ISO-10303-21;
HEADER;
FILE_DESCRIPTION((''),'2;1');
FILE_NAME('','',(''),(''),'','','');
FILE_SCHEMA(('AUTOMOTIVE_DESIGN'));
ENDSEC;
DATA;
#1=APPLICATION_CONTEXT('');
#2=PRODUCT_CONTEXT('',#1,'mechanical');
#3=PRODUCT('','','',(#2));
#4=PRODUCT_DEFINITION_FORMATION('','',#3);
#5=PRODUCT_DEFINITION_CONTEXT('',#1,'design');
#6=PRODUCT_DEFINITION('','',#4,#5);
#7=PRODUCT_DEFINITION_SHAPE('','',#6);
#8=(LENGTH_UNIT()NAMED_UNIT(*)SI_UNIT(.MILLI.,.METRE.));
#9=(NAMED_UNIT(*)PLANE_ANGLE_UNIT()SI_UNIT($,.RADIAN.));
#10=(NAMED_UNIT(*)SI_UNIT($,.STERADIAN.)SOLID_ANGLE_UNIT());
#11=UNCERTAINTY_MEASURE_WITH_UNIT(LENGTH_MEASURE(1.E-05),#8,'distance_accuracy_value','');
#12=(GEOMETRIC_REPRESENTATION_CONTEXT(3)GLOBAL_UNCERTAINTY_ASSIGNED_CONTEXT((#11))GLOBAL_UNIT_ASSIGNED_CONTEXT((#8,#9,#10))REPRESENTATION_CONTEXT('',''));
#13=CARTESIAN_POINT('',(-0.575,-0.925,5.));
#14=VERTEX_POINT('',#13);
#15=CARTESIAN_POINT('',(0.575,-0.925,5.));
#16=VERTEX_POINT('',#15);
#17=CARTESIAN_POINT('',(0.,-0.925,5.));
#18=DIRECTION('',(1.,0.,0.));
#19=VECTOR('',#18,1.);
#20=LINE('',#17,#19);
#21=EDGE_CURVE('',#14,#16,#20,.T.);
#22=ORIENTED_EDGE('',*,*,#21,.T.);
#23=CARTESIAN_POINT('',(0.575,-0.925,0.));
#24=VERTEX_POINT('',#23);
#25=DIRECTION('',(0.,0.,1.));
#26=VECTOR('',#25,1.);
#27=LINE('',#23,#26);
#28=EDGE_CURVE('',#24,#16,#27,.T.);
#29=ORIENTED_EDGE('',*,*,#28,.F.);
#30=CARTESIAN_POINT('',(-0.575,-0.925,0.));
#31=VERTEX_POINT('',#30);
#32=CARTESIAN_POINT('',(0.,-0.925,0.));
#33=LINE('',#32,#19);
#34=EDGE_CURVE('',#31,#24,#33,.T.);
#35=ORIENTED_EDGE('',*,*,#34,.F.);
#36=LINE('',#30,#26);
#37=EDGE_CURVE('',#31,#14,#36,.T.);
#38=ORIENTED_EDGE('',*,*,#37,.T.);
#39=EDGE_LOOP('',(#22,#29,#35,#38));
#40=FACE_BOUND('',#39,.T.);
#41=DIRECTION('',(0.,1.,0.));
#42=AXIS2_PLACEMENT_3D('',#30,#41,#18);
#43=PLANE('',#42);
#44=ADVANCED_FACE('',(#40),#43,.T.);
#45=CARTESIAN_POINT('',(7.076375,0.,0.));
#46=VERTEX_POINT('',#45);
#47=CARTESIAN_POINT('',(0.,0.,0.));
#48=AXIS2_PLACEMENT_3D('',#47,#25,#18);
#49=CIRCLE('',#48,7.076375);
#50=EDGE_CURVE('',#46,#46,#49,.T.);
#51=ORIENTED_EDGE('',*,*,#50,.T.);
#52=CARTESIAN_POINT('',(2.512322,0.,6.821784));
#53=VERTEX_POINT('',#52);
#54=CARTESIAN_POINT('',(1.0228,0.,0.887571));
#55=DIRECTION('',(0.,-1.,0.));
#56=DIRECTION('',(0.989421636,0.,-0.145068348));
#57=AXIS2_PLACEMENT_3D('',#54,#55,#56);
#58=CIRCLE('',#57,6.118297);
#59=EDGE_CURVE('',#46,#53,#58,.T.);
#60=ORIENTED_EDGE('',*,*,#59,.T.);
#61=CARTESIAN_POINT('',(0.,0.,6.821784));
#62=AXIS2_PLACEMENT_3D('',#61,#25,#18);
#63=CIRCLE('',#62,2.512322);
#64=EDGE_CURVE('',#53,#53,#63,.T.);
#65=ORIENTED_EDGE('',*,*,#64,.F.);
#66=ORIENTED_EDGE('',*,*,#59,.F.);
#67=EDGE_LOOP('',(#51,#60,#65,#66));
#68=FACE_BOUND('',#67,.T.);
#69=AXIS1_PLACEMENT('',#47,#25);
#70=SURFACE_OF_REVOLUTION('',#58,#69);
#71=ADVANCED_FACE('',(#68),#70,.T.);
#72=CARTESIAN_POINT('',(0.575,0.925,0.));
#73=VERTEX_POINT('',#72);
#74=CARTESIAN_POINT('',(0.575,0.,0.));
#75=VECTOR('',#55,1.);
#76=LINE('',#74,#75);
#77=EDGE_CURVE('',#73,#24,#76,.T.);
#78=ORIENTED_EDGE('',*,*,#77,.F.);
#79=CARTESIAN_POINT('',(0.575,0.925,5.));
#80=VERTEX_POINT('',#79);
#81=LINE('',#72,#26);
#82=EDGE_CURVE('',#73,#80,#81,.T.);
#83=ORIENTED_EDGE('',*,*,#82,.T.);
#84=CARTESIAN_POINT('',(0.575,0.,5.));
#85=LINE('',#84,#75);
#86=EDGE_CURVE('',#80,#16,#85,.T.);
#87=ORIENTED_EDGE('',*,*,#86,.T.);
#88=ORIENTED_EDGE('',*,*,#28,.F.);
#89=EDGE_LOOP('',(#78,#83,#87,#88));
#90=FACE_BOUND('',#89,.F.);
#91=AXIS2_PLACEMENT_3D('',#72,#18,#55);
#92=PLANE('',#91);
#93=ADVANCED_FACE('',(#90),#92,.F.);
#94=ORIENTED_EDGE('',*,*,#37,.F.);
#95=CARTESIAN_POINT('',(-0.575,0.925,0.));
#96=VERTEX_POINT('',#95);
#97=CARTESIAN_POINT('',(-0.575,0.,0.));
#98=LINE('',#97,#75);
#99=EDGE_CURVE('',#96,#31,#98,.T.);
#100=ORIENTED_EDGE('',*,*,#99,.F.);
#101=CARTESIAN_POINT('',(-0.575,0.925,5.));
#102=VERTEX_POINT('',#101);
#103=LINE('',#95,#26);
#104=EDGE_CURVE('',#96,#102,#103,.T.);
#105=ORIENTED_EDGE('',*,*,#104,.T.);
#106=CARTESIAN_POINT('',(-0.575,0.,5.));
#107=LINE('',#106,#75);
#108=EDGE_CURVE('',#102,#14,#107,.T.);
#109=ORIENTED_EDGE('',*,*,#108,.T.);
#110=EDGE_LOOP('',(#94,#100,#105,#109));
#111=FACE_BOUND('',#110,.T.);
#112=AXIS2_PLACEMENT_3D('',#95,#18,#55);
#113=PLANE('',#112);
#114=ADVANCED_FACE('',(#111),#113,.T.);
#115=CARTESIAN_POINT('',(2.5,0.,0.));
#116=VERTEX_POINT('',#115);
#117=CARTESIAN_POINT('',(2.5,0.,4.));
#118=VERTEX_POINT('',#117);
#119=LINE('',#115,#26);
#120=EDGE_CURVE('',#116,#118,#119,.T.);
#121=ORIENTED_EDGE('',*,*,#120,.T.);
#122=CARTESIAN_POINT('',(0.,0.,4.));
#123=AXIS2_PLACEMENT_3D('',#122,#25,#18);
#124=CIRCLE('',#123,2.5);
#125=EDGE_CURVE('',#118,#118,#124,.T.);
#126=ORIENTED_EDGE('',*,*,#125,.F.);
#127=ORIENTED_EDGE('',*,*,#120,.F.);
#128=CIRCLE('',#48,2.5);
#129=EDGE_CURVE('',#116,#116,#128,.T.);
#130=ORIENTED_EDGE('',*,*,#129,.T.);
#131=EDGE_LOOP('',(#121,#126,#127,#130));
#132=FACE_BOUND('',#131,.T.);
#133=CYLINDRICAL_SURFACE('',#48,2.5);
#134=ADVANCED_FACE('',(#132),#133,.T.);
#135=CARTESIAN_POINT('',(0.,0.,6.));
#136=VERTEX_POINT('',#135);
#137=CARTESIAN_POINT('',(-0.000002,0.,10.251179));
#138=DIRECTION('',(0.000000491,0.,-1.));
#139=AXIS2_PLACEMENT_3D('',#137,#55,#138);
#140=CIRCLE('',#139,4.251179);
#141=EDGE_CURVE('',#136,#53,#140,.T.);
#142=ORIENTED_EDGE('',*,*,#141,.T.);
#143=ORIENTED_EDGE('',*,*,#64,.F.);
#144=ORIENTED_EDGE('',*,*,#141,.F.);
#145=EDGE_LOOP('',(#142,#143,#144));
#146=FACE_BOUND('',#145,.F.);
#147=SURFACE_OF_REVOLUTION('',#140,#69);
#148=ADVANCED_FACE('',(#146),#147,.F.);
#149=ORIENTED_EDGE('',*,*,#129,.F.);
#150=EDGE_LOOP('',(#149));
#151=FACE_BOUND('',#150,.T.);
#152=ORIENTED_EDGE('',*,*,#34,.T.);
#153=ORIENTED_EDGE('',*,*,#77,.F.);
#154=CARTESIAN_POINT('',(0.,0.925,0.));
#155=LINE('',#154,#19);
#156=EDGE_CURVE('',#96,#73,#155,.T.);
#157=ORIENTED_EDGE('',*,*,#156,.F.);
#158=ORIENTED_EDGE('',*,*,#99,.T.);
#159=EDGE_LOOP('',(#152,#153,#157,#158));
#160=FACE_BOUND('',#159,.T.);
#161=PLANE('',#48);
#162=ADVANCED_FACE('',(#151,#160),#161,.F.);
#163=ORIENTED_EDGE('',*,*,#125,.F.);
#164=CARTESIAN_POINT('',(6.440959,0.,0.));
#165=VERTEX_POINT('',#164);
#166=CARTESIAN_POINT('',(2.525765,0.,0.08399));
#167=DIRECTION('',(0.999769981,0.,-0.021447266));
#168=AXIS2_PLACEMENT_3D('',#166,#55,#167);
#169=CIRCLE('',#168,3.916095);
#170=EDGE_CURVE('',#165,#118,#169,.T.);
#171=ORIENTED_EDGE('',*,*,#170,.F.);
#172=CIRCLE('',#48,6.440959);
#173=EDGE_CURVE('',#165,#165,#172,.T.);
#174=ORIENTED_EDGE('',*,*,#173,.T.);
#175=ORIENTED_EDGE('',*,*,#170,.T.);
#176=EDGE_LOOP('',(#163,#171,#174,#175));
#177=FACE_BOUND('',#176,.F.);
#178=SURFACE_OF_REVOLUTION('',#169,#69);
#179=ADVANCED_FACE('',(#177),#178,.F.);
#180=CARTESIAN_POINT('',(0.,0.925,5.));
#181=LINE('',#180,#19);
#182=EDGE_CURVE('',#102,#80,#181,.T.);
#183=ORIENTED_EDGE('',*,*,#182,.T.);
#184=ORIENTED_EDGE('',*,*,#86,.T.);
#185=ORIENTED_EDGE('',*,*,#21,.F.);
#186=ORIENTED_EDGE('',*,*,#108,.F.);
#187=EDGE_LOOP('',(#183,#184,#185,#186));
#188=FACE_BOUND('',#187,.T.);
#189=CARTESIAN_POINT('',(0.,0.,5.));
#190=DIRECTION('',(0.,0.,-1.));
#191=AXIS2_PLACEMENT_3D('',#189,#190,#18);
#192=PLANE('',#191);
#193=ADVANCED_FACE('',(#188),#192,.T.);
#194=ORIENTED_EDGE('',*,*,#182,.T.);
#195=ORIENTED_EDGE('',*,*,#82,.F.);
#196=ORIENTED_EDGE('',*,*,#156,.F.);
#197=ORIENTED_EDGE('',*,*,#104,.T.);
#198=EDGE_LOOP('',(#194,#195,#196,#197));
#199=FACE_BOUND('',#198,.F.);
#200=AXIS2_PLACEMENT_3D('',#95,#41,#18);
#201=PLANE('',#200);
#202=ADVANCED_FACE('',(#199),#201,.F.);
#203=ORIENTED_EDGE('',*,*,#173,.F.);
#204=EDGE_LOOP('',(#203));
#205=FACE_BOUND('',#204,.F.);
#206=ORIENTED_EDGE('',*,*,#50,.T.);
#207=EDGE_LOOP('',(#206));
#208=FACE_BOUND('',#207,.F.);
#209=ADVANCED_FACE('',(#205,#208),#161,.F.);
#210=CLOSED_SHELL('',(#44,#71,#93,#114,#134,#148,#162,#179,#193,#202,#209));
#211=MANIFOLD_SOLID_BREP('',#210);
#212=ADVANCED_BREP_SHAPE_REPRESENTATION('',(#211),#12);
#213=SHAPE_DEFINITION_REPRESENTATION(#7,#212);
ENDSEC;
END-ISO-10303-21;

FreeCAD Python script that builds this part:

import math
import FreeCAD as App
import Part
import Sketcher

V = App.Vector

doc = App.newDocument("Part")
body = doc.addObject("PartDesign::Body", "Body")

# Sketch on XZ plane
sketch1 = body.newObject("Sketcher::SketchObject", "Sketch")
sketch1.AttachmentSupport = (doc.getObject("XZ_Plane"), [""])
sketch1.MapMode = "FlatFace"
sketch1.addGeometry([
    Part.ArcOfCircle(Part.Circle(V(-0.000002, 10.251179, 0), V(0, 0, 1), 4.251179), math.radians(-89.999972), math.radians(-53.774044)),  # 0
    Part.LineSegment(V(0, 6, 0), V(0, 0, 0)),  # 1
    Part.LineSegment(V(0, 0, 0), V(2.5, 0, 0)),  # 2
    Part.LineSegment(V(2.5, 0, 0), V(2.5, 4, 0)),  # 3
    Part.ArcOfCircle(Part.Circle(V(2.525765, 0.08399, 0), V(0, 0, 1), 3.916095), math.radians(-1.228932), math.radians(90.37696)),  # 4
    Part.LineSegment(V(6.440959, 0, 0), V(7.076375, 0, 0)),  # 5
    Part.ArcOfCircle(Part.Circle(V(1.0228, 0.887571, 0), V(0, 0, 1), 6.118297), math.radians(-8.341237), math.radians(75.909526)),  # 6
], False)
sketch1.addConstraint([
    Sketcher.Constraint("Coincident", 0, 1, 1, 1),
    Sketcher.Constraint("Coincident", 1, 2, 2, 1),
    Sketcher.Constraint("Coincident", 2, 2, 3, 1),
    Sketcher.Constraint("Coincident", 3, 2, 4, 2),
    Sketcher.Constraint("Coincident", 4, 1, 5, 1),
    Sketcher.Constraint("Coincident", 5, 2, 6, 1),
    Sketcher.Constraint("Coincident", 6, 2, 0, 2),
    Sketcher.Constraint("Vertical", 1),
    Sketcher.Constraint("Horizontal", 2),
    Sketcher.Constraint("Vertical", 3),
    Sketcher.Constraint("Horizontal", 5),
    Sketcher.Constraint("Coincident", 1, 2, -1, 1),
    Sketcher.Constraint("PointOnObject", 4, 1, -1),
    Sketcher.Constraint("DistanceY", 1, 2, 1, 1, 6.0),
    Sketcher.Constraint("DistanceY", 3, 1, 3, 2, 4.0),
    Sketcher.Constraint("DistanceX", 2, 1, 2, 2, 2.5),
    Sketcher.Constraint("Radius", 0, 4.251179),
    Sketcher.Constraint("Radius", 4, 3.916095),
    Sketcher.Constraint("Radius", 6, 6.118297),
    Sketcher.Constraint("DistanceX", -1, 1, 6, 3, 1.0228),
    Sketcher.Constraint("DistanceX", 0, 3, 6, 3, 1.022802),
    Sketcher.Constraint("DistanceX", 5, 1, 5, 2, 0.635416),
    Sketcher.Constraint("DistanceY", -1, 1, 6, 3, 0.887571),
])
revolution = body.newObject("PartDesign::Revolution", "Revolution")
revolution.Profile = sketch1
revolution.ReferenceAxis = (sketch1, ["V_Axis"])
revolution.Angle = 360

# Sketch on XY plane
sketch2 = body.newObject("Sketcher::SketchObject", "Sketch001")
sketch2.AttachmentSupport = (doc.getObject("XY_Plane"), [""])
sketch2.MapMode = "FlatFace"
sketch2.addGeometry([
    Part.LineSegment(V(-0.575, -0.925, 0), V(-0.575, 0.925, 0)),
    Part.LineSegment(V(-0.575, 0.925, 0), V(0.575, 0.925, 0)),
    Part.LineSegment(V(0.575, 0.925, 0), V(0.575, -0.925, 0)),
    Part.LineSegment(V(0.575, -0.925, 0), V(-0.575, -0.925, 0)),
], False)
sketch2.addConstraint([
    Sketcher.Constraint("Coincident", 0, 2, 1, 1),
    Sketcher.Constraint("Coincident", 1, 2, 2, 1),
    Sketcher.Constraint("Coincident", 2, 2, 3, 1),
    Sketcher.Constraint("Coincident", 3, 2, 0, 1),
    Sketcher.Constraint("Vertical", 0),
    Sketcher.Constraint("Horizontal", 1),
    Sketcher.Constraint("Vertical", 2),
    Sketcher.Constraint("Horizontal", 3),
    Sketcher.Constraint("Symmetric", 0, 2, 2, 2, -1, 1),
    Sketcher.Constraint("DistanceX", 1, 1, 1, 2, 1.15),
    Sketcher.Constraint("DistanceY", 0, 1, 0, 2, 1.85),
])
pocket1 = body.newObject("PartDesign::Pocket", "Pocket")
pocket1.Profile = sketch2
pocket1.Length = 5
pocket1.Reversed = True

doc.recompute()
